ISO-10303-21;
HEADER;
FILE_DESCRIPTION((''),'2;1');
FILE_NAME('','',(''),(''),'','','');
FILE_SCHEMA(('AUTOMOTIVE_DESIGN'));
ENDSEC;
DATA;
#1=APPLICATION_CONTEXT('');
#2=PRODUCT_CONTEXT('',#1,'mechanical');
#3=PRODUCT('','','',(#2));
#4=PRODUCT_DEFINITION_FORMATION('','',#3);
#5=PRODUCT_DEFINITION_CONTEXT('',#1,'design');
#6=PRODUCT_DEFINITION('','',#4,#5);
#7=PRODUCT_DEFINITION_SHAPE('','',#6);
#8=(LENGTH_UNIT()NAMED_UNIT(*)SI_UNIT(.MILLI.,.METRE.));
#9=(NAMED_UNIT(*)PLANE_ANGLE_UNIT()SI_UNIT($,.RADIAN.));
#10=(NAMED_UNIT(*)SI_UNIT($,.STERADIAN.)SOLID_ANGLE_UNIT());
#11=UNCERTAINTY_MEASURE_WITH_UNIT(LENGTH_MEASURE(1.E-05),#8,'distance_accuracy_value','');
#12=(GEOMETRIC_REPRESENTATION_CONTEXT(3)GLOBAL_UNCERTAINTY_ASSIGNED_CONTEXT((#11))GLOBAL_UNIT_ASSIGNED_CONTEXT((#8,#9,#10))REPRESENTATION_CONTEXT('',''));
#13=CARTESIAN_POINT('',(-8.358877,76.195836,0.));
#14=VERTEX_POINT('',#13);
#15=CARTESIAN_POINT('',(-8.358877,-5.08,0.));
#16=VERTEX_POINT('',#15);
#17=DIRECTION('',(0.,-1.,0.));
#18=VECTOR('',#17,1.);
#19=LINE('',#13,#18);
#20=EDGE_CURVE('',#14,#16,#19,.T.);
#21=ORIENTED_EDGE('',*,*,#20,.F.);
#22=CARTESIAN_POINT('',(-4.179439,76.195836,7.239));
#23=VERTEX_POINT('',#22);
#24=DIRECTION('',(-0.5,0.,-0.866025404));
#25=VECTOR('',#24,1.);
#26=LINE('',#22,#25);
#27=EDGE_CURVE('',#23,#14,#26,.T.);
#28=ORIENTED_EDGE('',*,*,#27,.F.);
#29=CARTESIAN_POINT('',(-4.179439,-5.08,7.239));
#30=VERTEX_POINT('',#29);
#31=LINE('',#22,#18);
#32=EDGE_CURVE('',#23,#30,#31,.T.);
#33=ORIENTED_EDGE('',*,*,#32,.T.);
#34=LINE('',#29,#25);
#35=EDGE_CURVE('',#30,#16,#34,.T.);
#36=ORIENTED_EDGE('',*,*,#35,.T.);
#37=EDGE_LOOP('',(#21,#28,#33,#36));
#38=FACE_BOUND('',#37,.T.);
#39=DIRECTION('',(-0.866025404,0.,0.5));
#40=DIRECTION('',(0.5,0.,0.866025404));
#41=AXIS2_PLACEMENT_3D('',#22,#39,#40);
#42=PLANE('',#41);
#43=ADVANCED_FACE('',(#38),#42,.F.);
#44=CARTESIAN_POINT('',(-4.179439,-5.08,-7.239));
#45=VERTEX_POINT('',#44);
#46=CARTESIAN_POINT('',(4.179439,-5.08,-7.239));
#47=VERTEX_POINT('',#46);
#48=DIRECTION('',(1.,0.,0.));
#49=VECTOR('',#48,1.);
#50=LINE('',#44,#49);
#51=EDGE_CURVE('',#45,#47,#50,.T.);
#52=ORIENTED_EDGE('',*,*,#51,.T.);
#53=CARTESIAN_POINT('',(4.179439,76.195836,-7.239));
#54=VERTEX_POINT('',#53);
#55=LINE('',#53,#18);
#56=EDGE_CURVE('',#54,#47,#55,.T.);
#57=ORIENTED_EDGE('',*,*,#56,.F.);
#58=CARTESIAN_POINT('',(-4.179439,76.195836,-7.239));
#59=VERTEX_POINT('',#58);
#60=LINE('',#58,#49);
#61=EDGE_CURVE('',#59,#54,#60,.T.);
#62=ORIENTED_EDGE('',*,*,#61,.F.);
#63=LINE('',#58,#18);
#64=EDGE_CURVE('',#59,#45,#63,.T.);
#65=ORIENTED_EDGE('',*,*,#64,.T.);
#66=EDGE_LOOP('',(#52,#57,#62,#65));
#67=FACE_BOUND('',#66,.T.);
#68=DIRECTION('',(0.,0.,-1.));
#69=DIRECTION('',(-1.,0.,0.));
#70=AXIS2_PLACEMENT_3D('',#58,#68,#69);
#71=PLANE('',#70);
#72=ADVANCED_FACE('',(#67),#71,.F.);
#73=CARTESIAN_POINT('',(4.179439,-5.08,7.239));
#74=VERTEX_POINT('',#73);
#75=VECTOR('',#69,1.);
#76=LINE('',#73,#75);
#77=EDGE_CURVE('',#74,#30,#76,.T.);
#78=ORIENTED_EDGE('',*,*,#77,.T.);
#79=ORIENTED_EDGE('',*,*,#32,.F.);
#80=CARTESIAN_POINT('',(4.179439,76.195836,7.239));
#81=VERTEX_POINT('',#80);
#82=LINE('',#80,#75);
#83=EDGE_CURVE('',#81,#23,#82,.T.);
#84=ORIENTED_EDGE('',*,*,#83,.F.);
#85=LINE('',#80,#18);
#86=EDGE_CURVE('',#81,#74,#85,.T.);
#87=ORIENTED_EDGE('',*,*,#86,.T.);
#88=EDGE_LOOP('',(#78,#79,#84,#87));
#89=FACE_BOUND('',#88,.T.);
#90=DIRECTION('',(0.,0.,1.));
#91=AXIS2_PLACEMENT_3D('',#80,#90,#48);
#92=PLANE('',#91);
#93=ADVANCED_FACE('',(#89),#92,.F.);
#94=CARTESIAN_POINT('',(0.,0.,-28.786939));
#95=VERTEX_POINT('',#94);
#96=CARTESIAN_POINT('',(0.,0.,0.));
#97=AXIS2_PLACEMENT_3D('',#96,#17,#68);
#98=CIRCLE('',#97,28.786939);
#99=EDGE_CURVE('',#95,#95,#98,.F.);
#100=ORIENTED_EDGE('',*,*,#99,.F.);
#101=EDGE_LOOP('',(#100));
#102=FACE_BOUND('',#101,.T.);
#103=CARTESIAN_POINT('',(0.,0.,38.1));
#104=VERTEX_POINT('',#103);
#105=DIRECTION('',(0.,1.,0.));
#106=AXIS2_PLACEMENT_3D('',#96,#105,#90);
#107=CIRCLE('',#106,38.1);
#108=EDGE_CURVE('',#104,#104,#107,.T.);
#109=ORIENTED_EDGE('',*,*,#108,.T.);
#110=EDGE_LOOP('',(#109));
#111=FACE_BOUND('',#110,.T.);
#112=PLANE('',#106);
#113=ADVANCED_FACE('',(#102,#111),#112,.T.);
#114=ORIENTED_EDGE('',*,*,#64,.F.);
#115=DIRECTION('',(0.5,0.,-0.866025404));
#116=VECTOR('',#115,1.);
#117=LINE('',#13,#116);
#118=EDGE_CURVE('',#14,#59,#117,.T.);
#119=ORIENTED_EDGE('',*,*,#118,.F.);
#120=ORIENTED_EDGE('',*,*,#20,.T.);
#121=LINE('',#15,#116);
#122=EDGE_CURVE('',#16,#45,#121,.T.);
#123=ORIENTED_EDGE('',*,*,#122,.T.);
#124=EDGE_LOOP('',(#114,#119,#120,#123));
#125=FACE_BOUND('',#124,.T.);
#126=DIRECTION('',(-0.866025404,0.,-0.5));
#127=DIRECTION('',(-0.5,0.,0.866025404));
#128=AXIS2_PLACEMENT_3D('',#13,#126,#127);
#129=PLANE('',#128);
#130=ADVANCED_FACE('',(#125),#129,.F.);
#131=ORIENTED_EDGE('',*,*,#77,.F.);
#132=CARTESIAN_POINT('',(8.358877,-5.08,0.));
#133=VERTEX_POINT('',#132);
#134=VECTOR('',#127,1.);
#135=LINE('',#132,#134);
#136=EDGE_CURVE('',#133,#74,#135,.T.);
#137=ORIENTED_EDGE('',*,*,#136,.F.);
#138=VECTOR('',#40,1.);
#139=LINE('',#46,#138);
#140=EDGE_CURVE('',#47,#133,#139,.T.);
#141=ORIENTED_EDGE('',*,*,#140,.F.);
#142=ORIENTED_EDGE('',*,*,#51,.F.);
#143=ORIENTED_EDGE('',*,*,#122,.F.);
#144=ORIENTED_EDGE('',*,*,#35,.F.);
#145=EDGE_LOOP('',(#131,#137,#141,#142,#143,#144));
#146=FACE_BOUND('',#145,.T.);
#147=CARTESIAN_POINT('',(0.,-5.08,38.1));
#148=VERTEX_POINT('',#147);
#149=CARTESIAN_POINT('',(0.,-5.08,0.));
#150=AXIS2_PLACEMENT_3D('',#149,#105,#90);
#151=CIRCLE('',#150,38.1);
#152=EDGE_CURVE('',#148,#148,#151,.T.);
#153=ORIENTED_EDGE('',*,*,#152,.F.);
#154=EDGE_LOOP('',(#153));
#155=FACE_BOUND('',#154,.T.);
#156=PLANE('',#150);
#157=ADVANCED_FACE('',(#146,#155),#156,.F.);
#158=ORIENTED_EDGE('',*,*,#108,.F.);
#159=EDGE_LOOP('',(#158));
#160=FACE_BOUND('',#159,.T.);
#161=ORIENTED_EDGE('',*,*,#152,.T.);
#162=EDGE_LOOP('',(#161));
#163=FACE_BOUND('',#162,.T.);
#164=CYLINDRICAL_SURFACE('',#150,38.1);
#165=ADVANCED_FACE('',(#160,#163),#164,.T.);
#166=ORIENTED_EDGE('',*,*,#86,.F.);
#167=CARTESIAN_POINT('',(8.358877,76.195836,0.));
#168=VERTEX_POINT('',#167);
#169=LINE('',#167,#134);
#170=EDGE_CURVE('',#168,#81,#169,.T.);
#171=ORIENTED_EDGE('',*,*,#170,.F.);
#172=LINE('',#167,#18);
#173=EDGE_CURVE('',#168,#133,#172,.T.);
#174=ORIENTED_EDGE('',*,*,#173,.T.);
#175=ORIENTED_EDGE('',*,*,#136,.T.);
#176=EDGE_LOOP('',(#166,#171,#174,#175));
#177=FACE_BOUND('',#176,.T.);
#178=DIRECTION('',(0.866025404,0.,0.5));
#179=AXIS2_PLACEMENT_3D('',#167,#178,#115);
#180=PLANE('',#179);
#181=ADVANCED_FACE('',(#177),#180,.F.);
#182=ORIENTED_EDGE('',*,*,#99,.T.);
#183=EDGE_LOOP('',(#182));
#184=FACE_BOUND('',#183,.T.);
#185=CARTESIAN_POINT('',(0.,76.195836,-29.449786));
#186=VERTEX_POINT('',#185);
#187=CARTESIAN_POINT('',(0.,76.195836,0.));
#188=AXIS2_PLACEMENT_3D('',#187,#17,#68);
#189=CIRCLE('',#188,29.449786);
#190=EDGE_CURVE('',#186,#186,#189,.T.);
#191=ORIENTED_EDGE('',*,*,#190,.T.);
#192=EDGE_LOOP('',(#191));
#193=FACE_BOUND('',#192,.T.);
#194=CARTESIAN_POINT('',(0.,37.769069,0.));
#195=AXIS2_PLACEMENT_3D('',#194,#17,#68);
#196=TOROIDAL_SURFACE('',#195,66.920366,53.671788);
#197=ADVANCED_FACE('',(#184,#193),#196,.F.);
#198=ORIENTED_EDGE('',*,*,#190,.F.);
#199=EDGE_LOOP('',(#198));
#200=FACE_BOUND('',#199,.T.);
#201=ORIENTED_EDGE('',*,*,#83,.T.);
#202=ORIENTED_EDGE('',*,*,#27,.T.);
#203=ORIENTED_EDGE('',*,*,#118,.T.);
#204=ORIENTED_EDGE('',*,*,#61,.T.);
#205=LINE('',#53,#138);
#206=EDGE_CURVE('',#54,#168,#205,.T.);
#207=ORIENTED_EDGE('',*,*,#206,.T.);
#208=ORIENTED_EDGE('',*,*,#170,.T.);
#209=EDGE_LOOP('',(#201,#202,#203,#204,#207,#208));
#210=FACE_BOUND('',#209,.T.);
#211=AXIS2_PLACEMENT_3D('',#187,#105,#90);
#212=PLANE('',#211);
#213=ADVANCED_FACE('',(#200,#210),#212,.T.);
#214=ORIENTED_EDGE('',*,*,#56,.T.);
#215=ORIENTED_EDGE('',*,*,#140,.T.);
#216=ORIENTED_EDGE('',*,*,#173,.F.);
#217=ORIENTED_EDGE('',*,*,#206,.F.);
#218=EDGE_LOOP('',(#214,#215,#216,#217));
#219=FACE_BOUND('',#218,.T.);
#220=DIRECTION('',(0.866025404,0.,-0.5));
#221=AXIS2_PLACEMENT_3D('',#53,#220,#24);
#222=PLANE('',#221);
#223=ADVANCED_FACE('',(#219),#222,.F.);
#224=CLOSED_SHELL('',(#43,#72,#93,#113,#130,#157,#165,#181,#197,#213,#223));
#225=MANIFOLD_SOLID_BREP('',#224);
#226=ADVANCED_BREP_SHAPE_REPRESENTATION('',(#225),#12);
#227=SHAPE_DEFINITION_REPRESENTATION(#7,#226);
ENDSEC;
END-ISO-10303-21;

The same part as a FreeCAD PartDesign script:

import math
import FreeCAD as App
import Part
import Sketcher
Q = App.Units.Quantity


def add_polygon(sketch, points):
    """Adds a closed chain of lines whose ends are joined by coincident constraints."""
    first, n = sketch.GeometryCount, len(points)
    for a, b in zip(points, points[1:] + points[:1]):
        sketch.addGeometry(Part.LineSegment(App.Vector(*a, 0), App.Vector(*b, 0)), False)
    for i in range(n):
        sketch.addConstraint(Sketcher.Constraint("Coincident", first + i, 2, first + (i + 1) % n, 1))

doc = App.newDocument("Part")
body = doc.addObject("PartDesign::Body", "Body")

sketch1 = doc.addObject("Sketcher::SketchObject", "Sketch")
body.addObject(sketch1)
sketch1.AttachmentSupport = (doc.XZ_Plane, [""])
sketch1.MapMode = "FlatFace"
sketch1.addGeometry(Part.Circle(App.Vector(0, 0, 0), App.Vector(0, 0, 1), 38), False)
sketch1.addConstraint([
    Sketcher.Constraint("Coincident", 0, 3, -1, 1),
    Sketcher.Constraint("Diameter", 0, Q("3 in")),
])
pad1 = doc.addObject("PartDesign::Pad", "Pad")
body.addObject(pad1)
pad1.Profile = sketch1
pad1.Length = Q("0.2 in")

sketch2 = doc.addObject("Sketcher::SketchObject", "Sketch001")
body.addObject(sketch2)
sketch2.AttachmentSupport = (doc.XY_Plane, [""])
sketch2.MapMode = "FlatFace"
sketch2.addGeometry([
    Part.LineSegment(App.Vector(0, 76, 0), App.Vector(0, 0, 0)),
    Part.LineSegment(App.Vector(0, 0, 0), App.Vector(29, 0, 0)),
    Part.ArcOfCircle(Part.Circle(App.Vector(67, 38, 0), App.Vector(0, 0, 1), 54), math.radians(134), math.radians(225)),
    Part.LineSegment(App.Vector(29, 76, 0), App.Vector(0, 76, 0)),
], False)
sketch2.addConstraint([
    Sketcher.Constraint("Coincident", 0, 2, 1, 1),
    Sketcher.Constraint("Coincident", 1, 2, 2, 2),
    Sketcher.Constraint("Coincident", 2, 1, 3, 1),
    Sketcher.Constraint("Coincident", 3, 2, 0, 1),
    Sketcher.Constraint("Vertical", 0),
    Sketcher.Constraint("Horizontal", 1),
    Sketcher.Constraint("Horizontal", 3),
    Sketcher.Constraint("Coincident", 0, 2, -1, 1),
    Sketcher.Constraint("Radius", 2, Q("53.671788 mm")),
    Sketcher.Constraint("DistanceX", 1, 1, 1, 2, Q("28.786939 mm")),
    Sketcher.Constraint("DistanceX", 3, 2, 3, 1, Q("29.449786 mm")),
    Sketcher.Constraint("DistanceY", 0, 2, 0, 1, Q("76.195836 mm")),
])
revolution = doc.addObject("PartDesign::Revolution", "Revolution")
body.addObject(revolution)
revolution.Profile = sketch2
revolution.ReferenceAxis = (sketch2, ["V_Axis"])
revolution.Angle = 360

sketch3 = doc.addObject("Sketcher::SketchObject", "Sketch002")
body.addObject(sketch3)
sketch3.AttachmentSupport = (doc.XZ_Plane, [""])
sketch3.MapMode = "FlatFace"
sketch3.AttachmentOffset = App.Placement(App.Vector(0, 0, 0.2 * 25.4), App.Rotation())
add_polygon(sketch3, [(-8, 0), (-4, -7), (4, -7), (8, 0), (4, 7), (-4, 7)])
sketch3.addConstraint([
    Sketcher.Constraint("Horizontal", 1),
    Sketcher.Constraint("Horizontal", 4),
    Sketcher.Constraint("Symmetric", 0, 2, 3, 2, -1, 1),
    Sketcher.Constraint("Symmetric", 2, 2, 5, 2, -1, 1),
    Sketcher.Constraint("PointOnObject", 2, 2, -1),
    Sketcher.Constraint("Parallel", 2, 5),
    Sketcher.Constraint("Vertical", 1, 2, 3, 2),
    Sketcher.Constraint("Angle", 0, Q("-60 deg")),
    Sketcher.Constraint("DistanceY", 1, 2, 3, 2, Q("0.57 in")),
    Sketcher.Constraint("DistanceX", 1, 1, 1, 2, Q("8.358877 mm")),
])
pocket1 = doc.addObject("PartDesign::Pocket", "Pocket")
body.addObject(pocket1)
pocket1.Profile = sketch3
pocket1.Type = "ThroughAll"

doc.recompute()
